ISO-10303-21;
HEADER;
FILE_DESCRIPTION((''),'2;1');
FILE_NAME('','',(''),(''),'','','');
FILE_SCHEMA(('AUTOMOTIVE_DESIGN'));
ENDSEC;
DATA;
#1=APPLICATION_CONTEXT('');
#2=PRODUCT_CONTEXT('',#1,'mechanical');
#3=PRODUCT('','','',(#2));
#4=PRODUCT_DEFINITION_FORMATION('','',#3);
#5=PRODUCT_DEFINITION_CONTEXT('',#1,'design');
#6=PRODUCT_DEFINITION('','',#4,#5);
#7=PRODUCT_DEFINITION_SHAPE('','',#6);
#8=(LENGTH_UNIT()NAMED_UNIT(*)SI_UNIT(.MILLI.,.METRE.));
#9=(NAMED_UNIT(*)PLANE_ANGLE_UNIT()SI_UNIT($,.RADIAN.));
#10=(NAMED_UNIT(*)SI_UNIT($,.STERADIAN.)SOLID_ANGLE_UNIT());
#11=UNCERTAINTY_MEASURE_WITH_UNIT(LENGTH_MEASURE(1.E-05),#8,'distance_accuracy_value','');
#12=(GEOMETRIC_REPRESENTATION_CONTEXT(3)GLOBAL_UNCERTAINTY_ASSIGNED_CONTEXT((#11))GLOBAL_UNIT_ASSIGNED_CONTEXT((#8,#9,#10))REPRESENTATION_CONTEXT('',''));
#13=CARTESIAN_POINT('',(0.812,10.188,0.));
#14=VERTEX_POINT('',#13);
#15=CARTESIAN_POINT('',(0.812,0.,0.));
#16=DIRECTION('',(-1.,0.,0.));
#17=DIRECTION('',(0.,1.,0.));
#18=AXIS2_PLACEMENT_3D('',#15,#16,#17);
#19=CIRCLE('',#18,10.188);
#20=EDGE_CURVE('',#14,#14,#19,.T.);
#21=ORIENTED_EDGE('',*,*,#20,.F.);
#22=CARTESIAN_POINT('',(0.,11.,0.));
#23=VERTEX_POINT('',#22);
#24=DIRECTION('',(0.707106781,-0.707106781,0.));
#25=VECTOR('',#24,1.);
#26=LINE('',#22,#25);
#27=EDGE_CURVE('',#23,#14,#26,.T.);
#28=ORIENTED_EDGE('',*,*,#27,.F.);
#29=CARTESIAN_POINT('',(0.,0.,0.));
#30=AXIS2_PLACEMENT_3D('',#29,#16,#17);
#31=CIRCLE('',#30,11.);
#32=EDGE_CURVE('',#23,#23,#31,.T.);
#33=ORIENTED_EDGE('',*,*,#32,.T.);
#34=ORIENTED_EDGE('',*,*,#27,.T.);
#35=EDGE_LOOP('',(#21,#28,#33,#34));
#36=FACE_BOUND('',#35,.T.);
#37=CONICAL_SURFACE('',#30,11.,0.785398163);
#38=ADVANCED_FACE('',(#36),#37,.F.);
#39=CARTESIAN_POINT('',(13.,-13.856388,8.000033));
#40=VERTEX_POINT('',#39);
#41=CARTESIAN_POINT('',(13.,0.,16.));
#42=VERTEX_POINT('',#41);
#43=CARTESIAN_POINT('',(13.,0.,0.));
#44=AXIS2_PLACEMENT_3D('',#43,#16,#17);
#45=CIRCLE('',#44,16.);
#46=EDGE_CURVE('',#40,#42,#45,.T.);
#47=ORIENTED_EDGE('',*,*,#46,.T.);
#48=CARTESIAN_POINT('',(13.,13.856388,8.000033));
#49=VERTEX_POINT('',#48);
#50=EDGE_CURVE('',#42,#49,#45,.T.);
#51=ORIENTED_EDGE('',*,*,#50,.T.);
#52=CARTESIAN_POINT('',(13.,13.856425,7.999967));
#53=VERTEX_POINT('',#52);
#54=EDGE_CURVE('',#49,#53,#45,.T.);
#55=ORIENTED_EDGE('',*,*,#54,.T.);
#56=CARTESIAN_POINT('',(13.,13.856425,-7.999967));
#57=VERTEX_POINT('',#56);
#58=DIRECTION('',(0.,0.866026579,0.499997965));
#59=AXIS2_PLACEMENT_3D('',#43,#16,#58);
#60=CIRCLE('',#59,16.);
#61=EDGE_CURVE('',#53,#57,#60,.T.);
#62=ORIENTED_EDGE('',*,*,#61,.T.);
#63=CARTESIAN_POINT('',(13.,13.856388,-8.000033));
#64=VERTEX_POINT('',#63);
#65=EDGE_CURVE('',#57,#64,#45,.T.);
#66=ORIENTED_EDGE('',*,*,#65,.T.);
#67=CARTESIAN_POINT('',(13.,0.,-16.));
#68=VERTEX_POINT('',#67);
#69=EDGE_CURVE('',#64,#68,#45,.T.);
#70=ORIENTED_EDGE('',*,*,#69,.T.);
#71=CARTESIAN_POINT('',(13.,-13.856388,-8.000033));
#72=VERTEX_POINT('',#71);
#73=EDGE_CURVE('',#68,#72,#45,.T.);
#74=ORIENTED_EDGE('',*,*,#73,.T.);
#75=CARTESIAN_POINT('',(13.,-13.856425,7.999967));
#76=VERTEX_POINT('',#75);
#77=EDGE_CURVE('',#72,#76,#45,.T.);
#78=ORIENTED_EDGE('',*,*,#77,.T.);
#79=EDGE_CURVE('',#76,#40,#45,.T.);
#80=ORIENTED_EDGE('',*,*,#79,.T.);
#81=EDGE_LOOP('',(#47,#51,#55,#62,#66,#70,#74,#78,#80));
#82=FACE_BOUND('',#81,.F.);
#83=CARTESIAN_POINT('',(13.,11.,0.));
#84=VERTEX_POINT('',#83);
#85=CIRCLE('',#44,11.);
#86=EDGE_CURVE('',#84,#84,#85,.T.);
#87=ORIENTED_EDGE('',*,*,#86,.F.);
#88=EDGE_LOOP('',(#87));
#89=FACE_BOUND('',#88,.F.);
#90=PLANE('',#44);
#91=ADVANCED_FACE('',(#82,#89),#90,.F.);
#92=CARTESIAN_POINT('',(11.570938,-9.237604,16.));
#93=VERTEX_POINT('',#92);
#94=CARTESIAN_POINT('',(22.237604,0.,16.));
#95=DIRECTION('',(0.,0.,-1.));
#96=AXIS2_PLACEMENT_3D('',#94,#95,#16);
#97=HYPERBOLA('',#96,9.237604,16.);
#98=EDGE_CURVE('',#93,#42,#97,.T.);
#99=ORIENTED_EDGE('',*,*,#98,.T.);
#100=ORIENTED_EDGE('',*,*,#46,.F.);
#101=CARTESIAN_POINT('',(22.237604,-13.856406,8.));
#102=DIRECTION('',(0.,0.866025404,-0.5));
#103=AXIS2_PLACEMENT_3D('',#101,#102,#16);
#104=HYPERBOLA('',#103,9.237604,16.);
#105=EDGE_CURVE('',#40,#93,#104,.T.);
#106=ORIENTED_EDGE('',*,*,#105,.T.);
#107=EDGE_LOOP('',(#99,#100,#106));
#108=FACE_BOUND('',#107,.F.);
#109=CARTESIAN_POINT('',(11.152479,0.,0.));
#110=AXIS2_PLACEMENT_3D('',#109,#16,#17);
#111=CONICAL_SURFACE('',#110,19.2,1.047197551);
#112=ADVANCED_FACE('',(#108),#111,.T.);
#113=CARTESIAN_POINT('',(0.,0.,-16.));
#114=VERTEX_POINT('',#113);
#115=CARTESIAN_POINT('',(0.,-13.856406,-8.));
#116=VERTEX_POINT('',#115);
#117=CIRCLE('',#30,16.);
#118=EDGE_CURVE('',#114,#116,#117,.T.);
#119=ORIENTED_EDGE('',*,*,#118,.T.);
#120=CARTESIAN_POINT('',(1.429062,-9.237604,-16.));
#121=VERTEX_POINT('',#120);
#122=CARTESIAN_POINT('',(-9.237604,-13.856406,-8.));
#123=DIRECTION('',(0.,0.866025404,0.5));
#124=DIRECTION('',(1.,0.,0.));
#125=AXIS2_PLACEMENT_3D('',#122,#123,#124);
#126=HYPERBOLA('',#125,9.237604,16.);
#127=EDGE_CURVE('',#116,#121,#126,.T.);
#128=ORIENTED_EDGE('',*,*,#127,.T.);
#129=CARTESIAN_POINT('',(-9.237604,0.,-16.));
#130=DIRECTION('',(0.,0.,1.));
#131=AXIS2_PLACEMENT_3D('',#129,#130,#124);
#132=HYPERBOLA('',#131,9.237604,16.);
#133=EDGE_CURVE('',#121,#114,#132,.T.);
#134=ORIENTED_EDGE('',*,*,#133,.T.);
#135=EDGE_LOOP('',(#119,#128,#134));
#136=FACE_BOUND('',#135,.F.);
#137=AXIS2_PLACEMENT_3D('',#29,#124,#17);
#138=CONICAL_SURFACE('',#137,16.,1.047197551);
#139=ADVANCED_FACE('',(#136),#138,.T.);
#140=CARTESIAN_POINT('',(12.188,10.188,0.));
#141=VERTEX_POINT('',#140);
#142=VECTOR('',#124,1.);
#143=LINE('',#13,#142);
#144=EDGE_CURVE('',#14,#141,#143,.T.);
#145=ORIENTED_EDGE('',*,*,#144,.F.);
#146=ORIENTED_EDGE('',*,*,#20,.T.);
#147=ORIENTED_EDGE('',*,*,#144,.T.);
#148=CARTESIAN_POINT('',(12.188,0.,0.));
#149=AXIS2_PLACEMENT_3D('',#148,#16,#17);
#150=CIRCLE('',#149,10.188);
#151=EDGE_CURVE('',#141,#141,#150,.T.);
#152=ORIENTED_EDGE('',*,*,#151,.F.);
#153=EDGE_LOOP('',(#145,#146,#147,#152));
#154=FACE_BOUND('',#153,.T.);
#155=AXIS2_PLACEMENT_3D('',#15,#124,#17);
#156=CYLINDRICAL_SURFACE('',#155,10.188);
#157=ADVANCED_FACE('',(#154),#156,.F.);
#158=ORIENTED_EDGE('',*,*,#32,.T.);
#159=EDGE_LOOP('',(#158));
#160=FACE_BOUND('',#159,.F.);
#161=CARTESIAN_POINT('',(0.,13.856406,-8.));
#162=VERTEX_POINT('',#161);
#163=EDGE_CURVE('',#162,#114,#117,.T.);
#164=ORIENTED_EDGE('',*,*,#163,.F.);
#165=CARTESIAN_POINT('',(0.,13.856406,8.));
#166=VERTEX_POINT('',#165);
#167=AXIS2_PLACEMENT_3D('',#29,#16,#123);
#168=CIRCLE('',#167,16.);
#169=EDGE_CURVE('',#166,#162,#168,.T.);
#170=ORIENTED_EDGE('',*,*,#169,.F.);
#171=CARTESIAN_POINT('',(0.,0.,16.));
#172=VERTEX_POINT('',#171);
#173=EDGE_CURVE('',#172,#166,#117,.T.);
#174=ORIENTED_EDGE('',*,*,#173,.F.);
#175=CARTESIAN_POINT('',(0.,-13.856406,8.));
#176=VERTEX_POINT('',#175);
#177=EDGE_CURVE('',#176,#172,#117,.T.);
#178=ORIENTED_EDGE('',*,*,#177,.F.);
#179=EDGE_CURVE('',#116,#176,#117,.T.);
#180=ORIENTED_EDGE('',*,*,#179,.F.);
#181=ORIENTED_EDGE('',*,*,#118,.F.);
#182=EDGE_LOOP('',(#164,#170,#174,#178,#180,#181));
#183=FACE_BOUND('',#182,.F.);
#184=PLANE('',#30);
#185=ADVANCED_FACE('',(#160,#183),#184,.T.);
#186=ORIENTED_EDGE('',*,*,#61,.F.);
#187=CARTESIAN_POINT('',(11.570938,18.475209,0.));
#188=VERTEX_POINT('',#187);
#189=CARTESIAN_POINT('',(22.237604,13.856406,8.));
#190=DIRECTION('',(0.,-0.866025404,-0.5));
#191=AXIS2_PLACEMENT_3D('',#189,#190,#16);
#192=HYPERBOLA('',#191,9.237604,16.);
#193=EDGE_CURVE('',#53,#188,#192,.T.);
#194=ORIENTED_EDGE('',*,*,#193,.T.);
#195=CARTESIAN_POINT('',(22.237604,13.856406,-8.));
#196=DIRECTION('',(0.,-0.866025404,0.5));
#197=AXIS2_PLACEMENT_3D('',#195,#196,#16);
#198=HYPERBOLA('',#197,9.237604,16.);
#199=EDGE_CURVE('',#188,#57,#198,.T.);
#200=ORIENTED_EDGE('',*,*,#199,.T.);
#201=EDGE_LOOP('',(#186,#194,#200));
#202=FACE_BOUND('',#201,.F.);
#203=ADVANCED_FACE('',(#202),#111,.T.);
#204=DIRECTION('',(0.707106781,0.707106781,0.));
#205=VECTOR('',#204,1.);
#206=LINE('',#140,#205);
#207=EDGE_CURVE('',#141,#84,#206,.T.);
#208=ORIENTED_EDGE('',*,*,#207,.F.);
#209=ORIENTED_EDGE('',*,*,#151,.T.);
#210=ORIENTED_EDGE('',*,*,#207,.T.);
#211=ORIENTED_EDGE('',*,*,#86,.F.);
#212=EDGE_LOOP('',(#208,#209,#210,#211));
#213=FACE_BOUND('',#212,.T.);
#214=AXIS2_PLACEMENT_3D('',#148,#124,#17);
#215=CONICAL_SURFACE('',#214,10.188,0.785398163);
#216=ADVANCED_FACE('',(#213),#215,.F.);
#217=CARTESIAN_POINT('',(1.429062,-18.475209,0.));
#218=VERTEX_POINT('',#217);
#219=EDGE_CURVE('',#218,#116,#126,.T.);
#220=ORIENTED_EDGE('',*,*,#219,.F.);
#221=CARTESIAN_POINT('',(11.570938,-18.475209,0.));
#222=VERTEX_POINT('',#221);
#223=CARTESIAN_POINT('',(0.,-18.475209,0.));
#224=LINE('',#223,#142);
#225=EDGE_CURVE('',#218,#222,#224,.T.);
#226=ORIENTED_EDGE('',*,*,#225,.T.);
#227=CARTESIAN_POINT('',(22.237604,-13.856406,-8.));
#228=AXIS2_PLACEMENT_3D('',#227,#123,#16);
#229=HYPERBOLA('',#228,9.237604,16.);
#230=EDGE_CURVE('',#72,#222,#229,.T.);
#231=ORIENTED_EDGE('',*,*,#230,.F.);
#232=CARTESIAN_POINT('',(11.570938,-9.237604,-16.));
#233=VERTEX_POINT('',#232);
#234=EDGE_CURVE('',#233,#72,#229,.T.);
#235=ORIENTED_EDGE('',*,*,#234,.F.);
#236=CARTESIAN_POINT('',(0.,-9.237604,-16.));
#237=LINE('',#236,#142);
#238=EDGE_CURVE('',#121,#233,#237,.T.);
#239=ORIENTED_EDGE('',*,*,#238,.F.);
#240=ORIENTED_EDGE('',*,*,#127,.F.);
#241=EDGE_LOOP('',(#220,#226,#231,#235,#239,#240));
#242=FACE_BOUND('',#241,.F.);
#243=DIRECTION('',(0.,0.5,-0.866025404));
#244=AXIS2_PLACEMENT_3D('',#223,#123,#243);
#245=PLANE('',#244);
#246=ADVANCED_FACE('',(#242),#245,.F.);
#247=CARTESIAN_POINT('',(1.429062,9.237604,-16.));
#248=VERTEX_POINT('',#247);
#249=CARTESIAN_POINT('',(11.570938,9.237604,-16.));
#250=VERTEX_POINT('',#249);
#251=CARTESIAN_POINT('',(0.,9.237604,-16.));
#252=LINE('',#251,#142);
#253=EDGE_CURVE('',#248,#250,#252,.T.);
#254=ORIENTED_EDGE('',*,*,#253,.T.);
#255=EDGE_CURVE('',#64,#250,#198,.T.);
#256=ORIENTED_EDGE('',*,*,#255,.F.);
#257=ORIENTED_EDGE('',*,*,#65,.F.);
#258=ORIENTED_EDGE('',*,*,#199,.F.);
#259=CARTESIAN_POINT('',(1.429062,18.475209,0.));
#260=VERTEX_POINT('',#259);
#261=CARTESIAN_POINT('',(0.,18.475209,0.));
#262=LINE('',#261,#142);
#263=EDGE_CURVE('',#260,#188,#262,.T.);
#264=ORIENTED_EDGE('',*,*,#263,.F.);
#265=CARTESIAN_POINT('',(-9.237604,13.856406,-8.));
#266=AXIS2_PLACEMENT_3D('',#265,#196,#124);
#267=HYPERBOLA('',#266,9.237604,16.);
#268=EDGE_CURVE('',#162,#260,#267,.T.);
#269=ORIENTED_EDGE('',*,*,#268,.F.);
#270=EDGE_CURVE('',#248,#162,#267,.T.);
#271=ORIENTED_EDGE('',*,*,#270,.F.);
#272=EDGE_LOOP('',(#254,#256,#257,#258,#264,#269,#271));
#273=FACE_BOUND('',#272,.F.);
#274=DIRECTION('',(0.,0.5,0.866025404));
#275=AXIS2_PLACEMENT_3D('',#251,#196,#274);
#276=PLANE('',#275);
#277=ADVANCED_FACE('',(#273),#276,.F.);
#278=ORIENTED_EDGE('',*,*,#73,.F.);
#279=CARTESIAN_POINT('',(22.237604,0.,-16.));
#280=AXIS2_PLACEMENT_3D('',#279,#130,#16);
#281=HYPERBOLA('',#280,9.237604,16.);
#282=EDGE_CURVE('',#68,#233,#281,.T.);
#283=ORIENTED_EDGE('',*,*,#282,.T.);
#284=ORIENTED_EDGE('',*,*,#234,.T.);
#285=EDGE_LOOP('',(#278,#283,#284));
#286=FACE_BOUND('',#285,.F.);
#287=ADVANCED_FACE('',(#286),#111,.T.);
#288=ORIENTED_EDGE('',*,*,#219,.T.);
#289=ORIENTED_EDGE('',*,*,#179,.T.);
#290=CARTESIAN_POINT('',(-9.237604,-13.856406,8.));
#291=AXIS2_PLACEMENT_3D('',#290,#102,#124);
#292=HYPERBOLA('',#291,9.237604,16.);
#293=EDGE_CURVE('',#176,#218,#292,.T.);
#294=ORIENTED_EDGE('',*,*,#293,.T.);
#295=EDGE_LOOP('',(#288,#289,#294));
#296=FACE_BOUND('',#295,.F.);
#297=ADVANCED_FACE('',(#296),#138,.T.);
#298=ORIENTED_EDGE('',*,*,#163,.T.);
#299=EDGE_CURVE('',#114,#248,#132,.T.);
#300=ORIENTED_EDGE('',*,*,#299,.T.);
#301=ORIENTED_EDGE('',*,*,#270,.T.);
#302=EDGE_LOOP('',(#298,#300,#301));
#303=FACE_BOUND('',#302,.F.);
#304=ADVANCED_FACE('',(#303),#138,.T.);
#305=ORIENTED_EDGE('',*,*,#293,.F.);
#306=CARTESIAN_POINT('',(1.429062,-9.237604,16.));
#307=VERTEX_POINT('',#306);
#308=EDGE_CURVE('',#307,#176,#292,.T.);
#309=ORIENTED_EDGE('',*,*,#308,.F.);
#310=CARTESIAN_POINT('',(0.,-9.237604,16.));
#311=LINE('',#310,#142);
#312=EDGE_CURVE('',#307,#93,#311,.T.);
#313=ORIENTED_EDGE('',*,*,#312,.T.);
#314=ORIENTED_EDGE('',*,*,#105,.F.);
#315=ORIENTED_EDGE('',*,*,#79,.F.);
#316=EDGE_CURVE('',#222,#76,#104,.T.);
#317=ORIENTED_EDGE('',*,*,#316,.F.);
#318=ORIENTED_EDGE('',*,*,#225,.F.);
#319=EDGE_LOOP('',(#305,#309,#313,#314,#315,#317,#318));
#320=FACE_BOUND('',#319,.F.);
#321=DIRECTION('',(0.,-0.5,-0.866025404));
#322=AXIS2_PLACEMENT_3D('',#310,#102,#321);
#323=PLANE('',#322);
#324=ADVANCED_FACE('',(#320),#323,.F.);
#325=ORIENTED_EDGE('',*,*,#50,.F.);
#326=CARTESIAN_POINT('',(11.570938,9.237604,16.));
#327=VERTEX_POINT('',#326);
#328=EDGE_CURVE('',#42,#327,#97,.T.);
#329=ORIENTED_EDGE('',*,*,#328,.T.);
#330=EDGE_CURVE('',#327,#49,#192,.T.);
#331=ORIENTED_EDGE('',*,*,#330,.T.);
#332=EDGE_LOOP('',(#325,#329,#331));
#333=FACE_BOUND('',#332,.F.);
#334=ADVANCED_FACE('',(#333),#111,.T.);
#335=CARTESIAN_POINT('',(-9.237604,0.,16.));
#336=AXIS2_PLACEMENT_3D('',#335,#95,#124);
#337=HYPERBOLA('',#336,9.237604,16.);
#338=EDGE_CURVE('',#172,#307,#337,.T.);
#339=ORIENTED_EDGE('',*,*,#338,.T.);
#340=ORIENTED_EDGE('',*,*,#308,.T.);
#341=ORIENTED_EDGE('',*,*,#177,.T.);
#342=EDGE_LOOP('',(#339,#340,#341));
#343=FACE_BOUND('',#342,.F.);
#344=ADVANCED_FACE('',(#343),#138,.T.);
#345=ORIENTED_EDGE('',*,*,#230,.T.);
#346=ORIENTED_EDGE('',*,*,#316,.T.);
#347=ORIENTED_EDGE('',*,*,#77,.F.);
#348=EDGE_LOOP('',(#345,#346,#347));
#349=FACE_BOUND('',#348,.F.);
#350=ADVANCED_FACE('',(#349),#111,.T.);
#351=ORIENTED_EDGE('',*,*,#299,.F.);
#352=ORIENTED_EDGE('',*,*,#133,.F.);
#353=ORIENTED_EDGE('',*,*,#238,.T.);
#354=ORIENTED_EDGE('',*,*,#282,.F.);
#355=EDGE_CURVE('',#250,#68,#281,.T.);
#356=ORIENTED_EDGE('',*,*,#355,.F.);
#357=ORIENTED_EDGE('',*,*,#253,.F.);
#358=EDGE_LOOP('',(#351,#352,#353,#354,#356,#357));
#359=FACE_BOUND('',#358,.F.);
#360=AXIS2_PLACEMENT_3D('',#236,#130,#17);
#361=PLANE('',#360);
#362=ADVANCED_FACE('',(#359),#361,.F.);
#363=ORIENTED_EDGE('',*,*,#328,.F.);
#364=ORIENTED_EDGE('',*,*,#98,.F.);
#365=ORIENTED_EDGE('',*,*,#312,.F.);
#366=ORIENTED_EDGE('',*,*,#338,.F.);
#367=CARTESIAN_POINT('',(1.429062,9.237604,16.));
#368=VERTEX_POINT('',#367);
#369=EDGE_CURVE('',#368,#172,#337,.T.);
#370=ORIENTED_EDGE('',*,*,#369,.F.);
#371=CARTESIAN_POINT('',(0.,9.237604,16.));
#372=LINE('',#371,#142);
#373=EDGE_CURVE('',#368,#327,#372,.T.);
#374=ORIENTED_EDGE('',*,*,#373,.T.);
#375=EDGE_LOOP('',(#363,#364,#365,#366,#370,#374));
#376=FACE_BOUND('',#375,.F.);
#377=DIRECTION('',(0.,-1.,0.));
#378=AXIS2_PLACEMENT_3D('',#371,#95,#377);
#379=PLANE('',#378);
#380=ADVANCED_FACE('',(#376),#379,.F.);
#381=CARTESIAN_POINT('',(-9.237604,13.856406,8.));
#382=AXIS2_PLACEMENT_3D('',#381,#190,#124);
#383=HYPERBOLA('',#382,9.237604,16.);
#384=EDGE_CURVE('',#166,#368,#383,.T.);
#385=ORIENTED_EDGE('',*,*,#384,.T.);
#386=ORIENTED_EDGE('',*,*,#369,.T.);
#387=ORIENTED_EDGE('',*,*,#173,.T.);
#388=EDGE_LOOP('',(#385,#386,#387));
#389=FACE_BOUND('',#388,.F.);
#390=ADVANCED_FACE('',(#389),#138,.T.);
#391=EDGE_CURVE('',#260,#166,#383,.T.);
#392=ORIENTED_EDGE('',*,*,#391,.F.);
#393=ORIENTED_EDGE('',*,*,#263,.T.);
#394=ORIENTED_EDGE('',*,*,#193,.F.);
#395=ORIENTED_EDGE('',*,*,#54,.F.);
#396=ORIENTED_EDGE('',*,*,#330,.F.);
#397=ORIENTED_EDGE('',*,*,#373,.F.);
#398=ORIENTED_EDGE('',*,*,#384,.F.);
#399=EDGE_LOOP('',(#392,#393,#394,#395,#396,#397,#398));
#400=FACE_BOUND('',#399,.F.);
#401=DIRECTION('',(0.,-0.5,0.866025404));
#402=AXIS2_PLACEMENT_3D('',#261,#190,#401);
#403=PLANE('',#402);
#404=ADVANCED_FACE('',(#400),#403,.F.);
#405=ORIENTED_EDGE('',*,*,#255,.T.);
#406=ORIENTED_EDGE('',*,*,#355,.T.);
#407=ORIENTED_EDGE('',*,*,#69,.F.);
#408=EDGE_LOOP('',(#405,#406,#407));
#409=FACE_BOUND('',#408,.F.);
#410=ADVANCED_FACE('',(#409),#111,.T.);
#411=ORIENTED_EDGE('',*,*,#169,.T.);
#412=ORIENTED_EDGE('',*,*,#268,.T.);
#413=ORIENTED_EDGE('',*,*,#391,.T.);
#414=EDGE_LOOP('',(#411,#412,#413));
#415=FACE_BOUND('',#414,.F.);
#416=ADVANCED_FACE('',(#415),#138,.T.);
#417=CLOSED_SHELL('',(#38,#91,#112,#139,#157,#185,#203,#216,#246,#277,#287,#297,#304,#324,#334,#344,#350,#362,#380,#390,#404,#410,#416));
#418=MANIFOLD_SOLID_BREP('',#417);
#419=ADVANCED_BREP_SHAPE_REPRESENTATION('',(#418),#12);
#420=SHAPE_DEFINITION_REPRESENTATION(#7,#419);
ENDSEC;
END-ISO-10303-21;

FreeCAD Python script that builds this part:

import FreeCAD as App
import Part
import Sketcher
Q = App.Units.Quantity


def add_polygon(sketch, points):
    """Adds a closed chain of lines whose ends are joined by coincident constraints."""
    first, n = sketch.GeometryCount, len(points)
    for a, b in zip(points, points[1:] + points[:1]):
        sketch.addGeometry(Part.LineSegment(App.Vector(*a, 0), App.Vector(*b, 0)), False)
    for i in range(n):
        sketch.addConstraint(Sketcher.Constraint("Coincident", first + i, 2, first + (i + 1) % n, 1))

doc = App.newDocument("Part")
body = doc.addObject("PartDesign::Body", "Body")

sketch1 = body.newObject("Sketcher::SketchObject", "Sketch")
sketch1.AttachmentSupport = (doc.getObject("XY_Plane"), [""])
sketch1.MapMode = "FlatFace"
add_polygon(sketch1, [(0, 16), (0, 0), (13, 0), (13, 16), (11.2, 19.2), (1.8, 19.2)])
sketch1.addConstraint(Sketcher.Constraint("Vertical", 0))
sketch1.addConstraint(Sketcher.Constraint("Horizontal", 1))
sketch1.addConstraint(Sketcher.Constraint("Vertical", 2))
sketch1.addConstraint(Sketcher.Constraint("Horizontal", 4))
sketch1.addConstraint(Sketcher.Constraint("Coincident", 0, 2, -1, 1))
sketch1.addConstraint(Sketcher.Constraint("Horizontal", 2, 2, 5, 2))
sketch1.addConstraint(Sketcher.Constraint("Equal", 3, 5))
sketch1.addConstraint(Sketcher.Constraint("DistanceX", 1, 1, 1, 2, 13.0))
sketch1.addConstraint(Sketcher.Constraint("DistanceY", 0, 2, 0, 1, 16.0))
sketch1.addConstraint(Sketcher.Constraint("Angle", 3, Q("120 deg")))
sketch1.addConstraint(Sketcher.Constraint("DistanceY", -1, 1, 3, 2, 19.2))
revolution = body.newObject("PartDesign::Revolution", "Revolution")
revolution.Profile = sketch1
revolution.ReferenceAxis = (sketch1, ["H_Axis"])
revolution.Angle = 360

sketch2 = body.newObject("Sketcher::SketchObject", "Sketch001")
sketch2.AttachmentSupport = (doc.getObject("YZ_Plane"), [""])
sketch2.MapMode = "FlatFace"
add_polygon(sketch2, [(32, 32), (-32, 32), (-32, -32), (32, -32)])
add_polygon(sketch2, [(-18, 0), (-9, 16), (9, 16), (18, 0), (9, -16), (-9, -16)])
sketch2.addConstraint(Sketcher.Constraint("Horizontal", 0))
sketch2.addConstraint(Sketcher.Constraint("Vertical", 1))
sketch2.addConstraint(Sketcher.Constraint("Horizontal", 2))
sketch2.addConstraint(Sketcher.Constraint("Vertical", 3))
sketch2.addConstraint(Sketcher.Constraint("Horizontal", 5))
sketch2.addConstraint(Sketcher.Constraint("Horizontal", 8))
sketch2.addConstraint(Sketcher.Constraint("Symmetric", 0, 2, 2, 2, -1, 1))
sketch2.addConstraint(Sketcher.Constraint("Symmetric", 4, 2, 7, 2, -1, 1))
sketch2.addConstraint(Sketcher.Constraint("Symmetric", 6, 2, 9, 2, -1, 1))
sketch2.addConstraint(Sketcher.Constraint("PointOnObject", 6, 2, -1))
sketch2.addConstraint(Sketcher.Constraint("Parallel", 6, 9))
sketch2.addConstraint(Sketcher.Constraint("Vertical", 5, 2, 7, 2))
sketch2.addConstraint(Sketcher.Constraint("Equal", 2, 1))
sketch2.addConstraint(Sketcher.Constraint("DistanceX", 0, 2, 0, 1, 64.0))
sketch2.addConstraint(Sketcher.Constraint("Angle", 4, Q("60 deg")))
sketch2.addConstraint(Sketcher.Constraint("DistanceY", -1, 1, 4, 2, 16.0))
sketch2.addConstraint(Sketcher.Constraint("DistanceX", 5, 1, 5, 2, 18.475209))
pocket1 = body.newObject("PartDesign::Pocket", "Pocket")
pocket1.Profile = sketch2
pocket1.Length = 26
pocket1.Reversed = True

sketch3 = body.newObject("Sketcher::SketchObject", "Sketch002")
sketch3.AttachmentSupport = (doc.getObject("XY_Plane"), [""])
sketch3.MapMode = "FlatFace"
add_polygon(sketch3, [(0, 11), (0, 0), (13, 0), (13, 11), (12.2, 10.2), (0.8, 10.2)])
sketch3.addConstraint(Sketcher.Constraint("Vertical", 0))
sketch3.addConstraint(Sketcher.Constraint("Horizontal", 1))
sketch3.addConstraint(Sketcher.Constraint("Vertical", 2))
sketch3.addConstraint(Sketcher.Constraint("Horizontal", 4))
sketch3.addConstraint(Sketcher.Constraint("Coincident", 0, 2, -1, 1))
sketch3.addConstraint(Sketcher.Constraint("Perpendicular", 3, 5))
sketch3.addConstraint(Sketcher.Constraint("Horizontal", 2, 2, 5, 2))
sketch3.addConstraint(Sketcher.Constraint("Equal", 3, 5))
sketch3.addConstraint(Sketcher.Constraint("DistanceX", 1, 1, 1, 2, 13.0))
sketch3.addConstraint(Sketcher.Constraint("DistanceY", 0, 2, 0, 1, 11.0))
sketch3.addConstraint(Sketcher.Constraint("DistanceX", 4, 2, 4, 1, 11.376))
groove = body.newObject("PartDesign::Groove", "Groove")
groove.Profile = sketch3
groove.ReferenceAxis = (sketch3, ["H_Axis"])
groove.Angle = 360

doc.recompute()
